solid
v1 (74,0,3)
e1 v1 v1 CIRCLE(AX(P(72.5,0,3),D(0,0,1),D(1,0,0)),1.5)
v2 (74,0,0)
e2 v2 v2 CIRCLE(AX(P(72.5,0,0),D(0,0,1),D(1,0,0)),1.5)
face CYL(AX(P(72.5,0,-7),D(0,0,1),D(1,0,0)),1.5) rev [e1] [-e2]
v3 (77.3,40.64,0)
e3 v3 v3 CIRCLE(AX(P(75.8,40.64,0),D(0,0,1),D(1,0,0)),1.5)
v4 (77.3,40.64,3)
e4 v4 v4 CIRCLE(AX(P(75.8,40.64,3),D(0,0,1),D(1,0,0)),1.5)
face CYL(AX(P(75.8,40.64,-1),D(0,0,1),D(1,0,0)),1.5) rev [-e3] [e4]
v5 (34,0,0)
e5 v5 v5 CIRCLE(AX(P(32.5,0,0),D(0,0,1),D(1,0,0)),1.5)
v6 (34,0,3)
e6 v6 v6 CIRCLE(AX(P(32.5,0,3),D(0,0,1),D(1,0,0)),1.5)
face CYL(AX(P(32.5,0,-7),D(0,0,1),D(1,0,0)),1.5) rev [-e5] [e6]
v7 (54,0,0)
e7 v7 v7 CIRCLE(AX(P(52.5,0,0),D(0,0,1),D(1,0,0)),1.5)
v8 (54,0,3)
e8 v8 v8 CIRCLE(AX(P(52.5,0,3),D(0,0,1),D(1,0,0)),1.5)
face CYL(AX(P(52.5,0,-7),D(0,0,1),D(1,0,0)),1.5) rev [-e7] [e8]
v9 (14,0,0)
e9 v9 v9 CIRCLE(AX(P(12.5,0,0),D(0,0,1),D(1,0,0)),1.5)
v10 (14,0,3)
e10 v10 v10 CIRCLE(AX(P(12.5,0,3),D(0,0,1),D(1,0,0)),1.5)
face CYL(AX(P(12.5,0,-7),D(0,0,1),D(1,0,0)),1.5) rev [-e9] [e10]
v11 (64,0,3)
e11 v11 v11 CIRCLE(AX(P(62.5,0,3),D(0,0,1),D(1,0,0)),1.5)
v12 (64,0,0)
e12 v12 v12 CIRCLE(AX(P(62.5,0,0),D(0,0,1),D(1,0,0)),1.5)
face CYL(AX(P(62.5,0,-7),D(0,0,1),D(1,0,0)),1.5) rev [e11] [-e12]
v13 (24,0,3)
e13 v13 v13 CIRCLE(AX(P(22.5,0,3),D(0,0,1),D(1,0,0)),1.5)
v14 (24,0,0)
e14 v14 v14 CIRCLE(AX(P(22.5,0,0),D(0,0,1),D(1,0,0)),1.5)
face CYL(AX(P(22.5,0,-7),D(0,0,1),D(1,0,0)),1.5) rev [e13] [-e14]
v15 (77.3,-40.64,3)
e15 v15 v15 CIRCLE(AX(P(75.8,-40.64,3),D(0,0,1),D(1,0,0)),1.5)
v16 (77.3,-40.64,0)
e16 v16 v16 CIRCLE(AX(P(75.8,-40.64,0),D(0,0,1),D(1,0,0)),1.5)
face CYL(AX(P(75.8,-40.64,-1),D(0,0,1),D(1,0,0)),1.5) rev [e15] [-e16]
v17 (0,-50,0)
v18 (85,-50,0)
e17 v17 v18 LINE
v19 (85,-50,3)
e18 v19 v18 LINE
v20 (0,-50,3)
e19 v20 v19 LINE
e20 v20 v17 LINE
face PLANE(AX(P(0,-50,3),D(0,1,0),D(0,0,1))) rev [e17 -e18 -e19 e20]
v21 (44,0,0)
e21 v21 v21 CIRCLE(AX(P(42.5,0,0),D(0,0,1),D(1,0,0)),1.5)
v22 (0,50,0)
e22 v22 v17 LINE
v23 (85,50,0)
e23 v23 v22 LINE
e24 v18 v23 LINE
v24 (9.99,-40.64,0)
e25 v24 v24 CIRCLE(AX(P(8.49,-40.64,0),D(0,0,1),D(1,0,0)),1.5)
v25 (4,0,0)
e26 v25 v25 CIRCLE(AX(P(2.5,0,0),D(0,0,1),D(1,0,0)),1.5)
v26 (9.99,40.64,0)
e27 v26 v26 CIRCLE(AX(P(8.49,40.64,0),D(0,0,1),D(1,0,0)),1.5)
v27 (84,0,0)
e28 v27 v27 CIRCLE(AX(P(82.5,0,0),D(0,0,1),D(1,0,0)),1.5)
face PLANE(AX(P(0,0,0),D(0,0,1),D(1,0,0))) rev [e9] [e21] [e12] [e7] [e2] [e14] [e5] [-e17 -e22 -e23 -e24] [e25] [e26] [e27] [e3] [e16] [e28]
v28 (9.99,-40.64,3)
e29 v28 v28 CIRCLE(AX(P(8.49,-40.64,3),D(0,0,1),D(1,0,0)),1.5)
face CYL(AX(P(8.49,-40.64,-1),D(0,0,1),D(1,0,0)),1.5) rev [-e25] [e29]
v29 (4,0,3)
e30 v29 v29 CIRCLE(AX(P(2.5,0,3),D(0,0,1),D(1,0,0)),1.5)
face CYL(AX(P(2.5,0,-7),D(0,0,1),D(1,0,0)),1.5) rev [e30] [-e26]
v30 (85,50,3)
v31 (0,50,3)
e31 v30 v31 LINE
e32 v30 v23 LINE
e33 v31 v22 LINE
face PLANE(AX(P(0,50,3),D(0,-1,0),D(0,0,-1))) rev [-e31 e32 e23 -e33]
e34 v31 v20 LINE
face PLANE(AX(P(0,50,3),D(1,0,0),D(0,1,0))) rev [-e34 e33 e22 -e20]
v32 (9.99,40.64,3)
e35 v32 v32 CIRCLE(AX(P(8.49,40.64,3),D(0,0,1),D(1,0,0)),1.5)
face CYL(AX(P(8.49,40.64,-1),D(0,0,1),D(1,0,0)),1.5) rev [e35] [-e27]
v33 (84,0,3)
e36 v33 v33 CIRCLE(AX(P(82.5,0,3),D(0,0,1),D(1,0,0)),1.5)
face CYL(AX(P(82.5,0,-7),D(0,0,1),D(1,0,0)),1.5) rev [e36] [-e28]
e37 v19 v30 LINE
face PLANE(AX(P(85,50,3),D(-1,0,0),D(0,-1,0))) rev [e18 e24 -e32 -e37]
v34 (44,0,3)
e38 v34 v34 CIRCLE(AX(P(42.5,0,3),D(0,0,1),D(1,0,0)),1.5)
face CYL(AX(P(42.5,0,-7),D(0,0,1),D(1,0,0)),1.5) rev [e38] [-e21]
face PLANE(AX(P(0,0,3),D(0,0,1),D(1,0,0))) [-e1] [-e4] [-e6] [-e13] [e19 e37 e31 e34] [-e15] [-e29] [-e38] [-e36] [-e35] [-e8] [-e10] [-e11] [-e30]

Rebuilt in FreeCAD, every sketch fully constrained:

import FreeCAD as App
import Part
import Sketcher
from FreeCAD import Vector
Q = App.Units.Quantity


def add_polygon(sketch, points):
    """Adds a closed chain of lines whose ends are joined by coincident constraints."""
    first, n = sketch.GeometryCount, len(points)
    for a, b in zip(points, points[1:] + points[:1]):
        sketch.addGeometry(Part.LineSegment(App.Vector(*a, 0), App.Vector(*b, 0)), False)
    for i in range(n):
        sketch.addConstraint(Sketcher.Constraint("Coincident", first + i, 2, first + (i + 1) % n, 1))

doc = App.newDocument("Part")
body = doc.addObject("PartDesign::Body", "Body")

# Sketch on XY plane
sketch1 = body.newObject("Sketcher::SketchObject", "Sketch")
sketch1.AttachmentSupport = (doc.getObject("XY_Plane"), [""])
sketch1.MapMode = "FlatFace"
add_polygon(sketch1, [(0, 50), (0, -50), (85, -50), (85, 50)])  # lines 0-3
sketch1.addConstraint([
    Sketcher.Constraint("Vertical", 0),
    Sketcher.Constraint("Horizontal", 1),
    Sketcher.Constraint("Vertical", 2),
    Sketcher.Constraint("Horizontal", 3),
    Sketcher.Constraint("Symmetric", 0, 2, 3, 2, -1, 1),
    Sketcher.Constraint("DistanceX", 1, 1, 1, 2, Q("85 mm")),
    Sketcher.Constraint("DistanceY", 0, 2, 0, 1, Q("100 mm")),
])
pad1 = body.newObject("PartDesign::Pad", "Pad")
pad1.Profile = sketch1
pad1.Length = 3

# Sketch on XY plane
sketch2 = body.newObject("Sketcher::SketchObject", "Sketch001")
sketch2.AttachmentSupport = (doc.getObject("XY_Plane"), [""])
sketch2.MapMode = "FlatFace"
sketch2.AttachmentOffset = App.Placement(Vector(0, 0, 3), App.Rotation())
sketch2.addGeometry([
    Part.Circle(Vector(75.8, 40.6, 0), Vector(0, 0, 1), 1.5),
    Part.Circle(Vector(75.8, -40.6, 0), Vector(0, 0, 1), 1.5),
    Part.Circle(Vector(8.5, 40.6, 0), Vector(0, 0, 1), 1.5),
    Part.Circle(Vector(8.5, -40.6, 0), Vector(0, 0, 1), 1.5),
], False)
sketch2.addConstraint([
    Sketcher.Constraint("Equal", 0, 1),
    Sketcher.Constraint("Equal", 1, 2),
    Sketcher.Constraint("Equal", 2, 3),
    Sketcher.Constraint("Symmetric", 0, 3, 1, 3, -1),
    Sketcher.Constraint("Symmetric", 2, 3, 3, 3, -1),
    Sketcher.Constraint("Horizontal", 0, 3, 2, 3),
    Sketcher.Constraint("Diameter", 0, Q("3 mm")),
    Sketcher.Constraint("DistanceX", -1, 1, 0, 3, Q("75.8 mm")),
    Sketcher.Constraint("DistanceY", -1, 1, 0, 3, Q("40.64 mm")),
    Sketcher.Constraint("DistanceX", -1, 1, 2, 3, Q("8.49 mm")),
])
pocket1 = body.newObject("PartDesign::Pocket", "Pocket")
pocket1.Profile = sketch2
pocket1.Length = 4

# Sketch on XY plane
sketch3 = body.newObject("Sketcher::SketchObject", "Sketch002")
sketch3.AttachmentSupport = (doc.getObject("XY_Plane"), [""])
sketch3.MapMode = "FlatFace"
sketch3.AttachmentOffset = App.Placement(Vector(0, 0, 3), App.Rotation())
sketch3.addGeometry([
    Part.Circle(Vector(42.5, 0, 0), Vector(0, 0, 1), 1.5),  # 0
    Part.Circle(Vector(52.5, 0, 0), Vector(0, 0, 1), 1.5),  # 1
    Part.Circle(Vector(62.5, 0, 0), Vector(0, 0, 1), 1.5),  # 2
    Part.Circle(Vector(72.5, 0, 0), Vector(0, 0, 1), 1.5),  # 3
    Part.Circle(Vector(82.5, 0, 0), Vector(0, 0, 1), 1.5),  # 4
    Part.Circle(Vector(32.5, 0, 0), Vector(0, 0, 1), 1.5),  # 5
    Part.Circle(Vector(22.5, 0, 0), Vector(0, 0, 1), 1.5),  # 6
    Part.Circle(Vector(12.5, 0, 0), Vector(0, 0, 1), 1.5),  # 7
    Part.Circle(Vector(2.5, 0, 0), Vector(0, 0, 1), 1.5),  # 8
], False)
sketch3.addConstraint([
    Sketcher.Constraint("Equal", 0, 1),
    Sketcher.Constraint("Equal", 1, 2),
    Sketcher.Constraint("Equal", 2, 3),
    Sketcher.Constraint("Equal", 3, 4),
    Sketcher.Constraint("Equal", 4, 5),
    Sketcher.Constraint("Equal", 5, 6),
    Sketcher.Constraint("Equal", 6, 7),
    Sketcher.Constraint("Equal", 7, 8),
    Sketcher.Constraint("PointOnObject", 0, 3, -1),
    Sketcher.Constraint("PointOnObject", 1, 3, -1),
    Sketcher.Constraint("PointOnObject", 2, 3, -1),
    Sketcher.Constraint("PointOnObject", 3, 3, -1),
    Sketcher.Constraint("PointOnObject", 4, 3, -1),
    Sketcher.Constraint("PointOnObject", 5, 3, -1),
    Sketcher.Constraint("PointOnObject", 6, 3, -1),
    Sketcher.Constraint("PointOnObject", 7, 3, -1),
    Sketcher.Constraint("PointOnObject", 8, 3, -1),
    Sketcher.Constraint("Diameter", 0, Q("3 mm")),
    Sketcher.Constraint("DistanceX", 0, 3, 1, 3, Q("10 mm")),
    Sketcher.Constraint("DistanceX", 1, 3, 2, 3, Q("10 mm")),
    Sketcher.Constraint("DistanceX", 2, 3, 3, 3, Q("10 mm")),
    Sketcher.Constraint("DistanceX", 3, 3, 4, 3, Q("10 mm")),
    Sketcher.Constraint("DistanceX", 5, 3, 0, 3, Q("10 mm")),
    Sketcher.Constraint("DistanceX", 6, 3, 5, 3, Q("10 mm")),
    Sketcher.Constraint("DistanceX", 7, 3, 6, 3, Q("10 mm")),
    Sketcher.Constraint("DistanceX", 8, 3, 7, 3, Q("10 mm")),
    Sketcher.Constraint("DistanceX", -1, 1, 0, 3, Q("42.5 mm")),
])
pocket2 = body.newObject("PartDesign::Pocket", "Pocket001")
pocket2.Profile = sketch3
pocket2.Length = 10

doc.recompute()
